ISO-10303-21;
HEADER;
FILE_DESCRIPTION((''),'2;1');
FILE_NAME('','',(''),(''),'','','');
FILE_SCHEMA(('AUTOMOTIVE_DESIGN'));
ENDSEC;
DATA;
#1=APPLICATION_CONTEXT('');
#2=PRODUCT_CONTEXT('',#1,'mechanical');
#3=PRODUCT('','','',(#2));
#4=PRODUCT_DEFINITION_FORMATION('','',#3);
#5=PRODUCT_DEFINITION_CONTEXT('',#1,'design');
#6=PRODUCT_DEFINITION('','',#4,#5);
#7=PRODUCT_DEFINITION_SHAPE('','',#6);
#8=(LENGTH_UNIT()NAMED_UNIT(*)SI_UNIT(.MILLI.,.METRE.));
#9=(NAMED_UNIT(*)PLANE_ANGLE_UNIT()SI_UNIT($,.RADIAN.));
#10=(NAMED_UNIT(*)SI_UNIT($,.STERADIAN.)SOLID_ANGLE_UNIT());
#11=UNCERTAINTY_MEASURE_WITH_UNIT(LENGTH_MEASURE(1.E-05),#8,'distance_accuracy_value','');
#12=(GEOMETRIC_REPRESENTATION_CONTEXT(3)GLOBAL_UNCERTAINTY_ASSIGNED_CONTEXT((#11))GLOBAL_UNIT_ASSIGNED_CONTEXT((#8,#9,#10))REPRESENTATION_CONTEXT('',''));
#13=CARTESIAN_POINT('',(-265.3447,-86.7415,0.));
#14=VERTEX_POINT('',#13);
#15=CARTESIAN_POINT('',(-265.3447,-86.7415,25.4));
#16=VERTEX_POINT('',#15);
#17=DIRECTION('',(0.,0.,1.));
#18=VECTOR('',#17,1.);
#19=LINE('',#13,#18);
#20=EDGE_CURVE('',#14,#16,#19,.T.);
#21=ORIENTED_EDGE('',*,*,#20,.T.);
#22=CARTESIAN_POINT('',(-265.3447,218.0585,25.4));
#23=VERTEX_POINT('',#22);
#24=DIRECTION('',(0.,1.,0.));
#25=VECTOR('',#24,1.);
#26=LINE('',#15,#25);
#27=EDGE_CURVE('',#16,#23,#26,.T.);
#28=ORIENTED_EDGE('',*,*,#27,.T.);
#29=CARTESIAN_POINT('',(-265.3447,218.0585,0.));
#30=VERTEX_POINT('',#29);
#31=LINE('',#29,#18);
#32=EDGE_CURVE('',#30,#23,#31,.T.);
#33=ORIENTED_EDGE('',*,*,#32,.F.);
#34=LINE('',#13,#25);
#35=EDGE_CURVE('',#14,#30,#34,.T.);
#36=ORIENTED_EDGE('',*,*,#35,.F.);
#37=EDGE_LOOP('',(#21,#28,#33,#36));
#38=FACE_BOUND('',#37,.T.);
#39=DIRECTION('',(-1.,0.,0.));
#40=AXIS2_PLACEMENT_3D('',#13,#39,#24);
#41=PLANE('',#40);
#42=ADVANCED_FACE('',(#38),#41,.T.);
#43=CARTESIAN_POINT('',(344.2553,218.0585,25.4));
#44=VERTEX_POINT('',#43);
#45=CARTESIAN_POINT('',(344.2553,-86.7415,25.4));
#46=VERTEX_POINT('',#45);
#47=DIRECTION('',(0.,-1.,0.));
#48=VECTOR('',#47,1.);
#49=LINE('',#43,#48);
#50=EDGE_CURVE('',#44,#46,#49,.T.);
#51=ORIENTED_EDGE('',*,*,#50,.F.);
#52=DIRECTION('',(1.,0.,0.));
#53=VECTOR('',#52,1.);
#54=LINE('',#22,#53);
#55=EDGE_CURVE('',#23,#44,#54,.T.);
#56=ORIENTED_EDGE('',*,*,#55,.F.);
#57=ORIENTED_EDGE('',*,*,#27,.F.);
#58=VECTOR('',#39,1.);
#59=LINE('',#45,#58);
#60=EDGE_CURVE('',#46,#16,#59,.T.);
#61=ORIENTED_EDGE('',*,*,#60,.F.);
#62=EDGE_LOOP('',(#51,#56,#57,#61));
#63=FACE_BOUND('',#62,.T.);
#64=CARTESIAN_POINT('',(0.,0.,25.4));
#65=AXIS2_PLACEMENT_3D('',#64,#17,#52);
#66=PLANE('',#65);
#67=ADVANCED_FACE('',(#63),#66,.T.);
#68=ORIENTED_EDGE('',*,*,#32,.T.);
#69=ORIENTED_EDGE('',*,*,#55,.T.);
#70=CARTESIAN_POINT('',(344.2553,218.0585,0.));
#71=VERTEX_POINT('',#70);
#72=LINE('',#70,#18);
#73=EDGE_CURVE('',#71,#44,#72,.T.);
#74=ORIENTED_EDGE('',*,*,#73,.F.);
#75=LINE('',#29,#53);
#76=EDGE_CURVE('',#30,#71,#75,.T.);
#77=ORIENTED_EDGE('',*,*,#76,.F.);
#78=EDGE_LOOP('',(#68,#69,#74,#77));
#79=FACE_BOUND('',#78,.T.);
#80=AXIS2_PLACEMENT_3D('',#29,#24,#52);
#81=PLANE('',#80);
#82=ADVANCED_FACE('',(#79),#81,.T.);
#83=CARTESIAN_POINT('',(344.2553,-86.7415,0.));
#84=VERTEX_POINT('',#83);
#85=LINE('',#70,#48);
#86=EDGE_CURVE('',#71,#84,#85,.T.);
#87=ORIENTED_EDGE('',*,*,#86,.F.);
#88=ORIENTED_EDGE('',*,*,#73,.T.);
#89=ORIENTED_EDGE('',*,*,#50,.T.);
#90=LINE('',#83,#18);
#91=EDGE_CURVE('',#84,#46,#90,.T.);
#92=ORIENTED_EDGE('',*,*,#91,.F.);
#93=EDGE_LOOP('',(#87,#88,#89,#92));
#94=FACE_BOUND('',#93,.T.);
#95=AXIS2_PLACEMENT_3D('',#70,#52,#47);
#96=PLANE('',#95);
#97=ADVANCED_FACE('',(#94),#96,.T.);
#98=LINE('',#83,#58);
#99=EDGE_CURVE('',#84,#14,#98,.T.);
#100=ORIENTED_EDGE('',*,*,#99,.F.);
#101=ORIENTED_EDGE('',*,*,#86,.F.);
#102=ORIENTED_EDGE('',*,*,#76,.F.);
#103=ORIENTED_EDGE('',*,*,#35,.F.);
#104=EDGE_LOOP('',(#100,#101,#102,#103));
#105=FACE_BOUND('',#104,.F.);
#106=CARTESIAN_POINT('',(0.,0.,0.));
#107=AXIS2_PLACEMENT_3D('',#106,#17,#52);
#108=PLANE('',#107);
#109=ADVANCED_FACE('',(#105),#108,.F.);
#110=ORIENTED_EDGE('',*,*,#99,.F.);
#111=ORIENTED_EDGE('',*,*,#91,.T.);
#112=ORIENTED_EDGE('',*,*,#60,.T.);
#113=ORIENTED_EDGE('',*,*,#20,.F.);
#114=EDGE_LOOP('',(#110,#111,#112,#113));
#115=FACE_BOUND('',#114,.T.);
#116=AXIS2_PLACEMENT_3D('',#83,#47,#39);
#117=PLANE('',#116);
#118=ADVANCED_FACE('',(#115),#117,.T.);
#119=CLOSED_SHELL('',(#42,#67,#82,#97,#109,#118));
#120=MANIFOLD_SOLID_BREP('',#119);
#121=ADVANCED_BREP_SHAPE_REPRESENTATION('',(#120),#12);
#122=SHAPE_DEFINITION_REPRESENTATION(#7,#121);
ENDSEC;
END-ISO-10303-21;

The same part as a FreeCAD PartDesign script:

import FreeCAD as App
import Part
import Sketcher

V = App.Vector
Q = App.Units.Quantity


def add_polygon(sketch, points):
    """Adds a closed chain of lines whose ends are joined by coincident constraints."""
    first, n = sketch.GeometryCount, len(points)
    for a, b in zip(points, points[1:] + points[:1]):
        sketch.addGeometry(Part.LineSegment(App.Vector(*a, 0), App.Vector(*b, 0)), False)
    for i in range(n):
        sketch.addConstraint(Sketcher.Constraint("Coincident", first + i, 2, first + (i + 1) % n, 1))

doc = App.newDocument("Part")
body = doc.addObject("PartDesign::Body", "Body")

# Sketch on XY plane
sketch1 = doc.addObject("Sketcher::SketchObject", "Sketch")
body.addObject(sketch1)
sketch1.AttachmentSupport = (doc.XY_Plane, [""])
sketch1.MapMode = "FlatFace"
add_polygon(sketch1, [(344.2553, 218.0585), (-265.3447, 218.0585), (-265.3447, -86.7415), (344.2553, -86.7415)])  # lines 0-3
sketch1.addConstraint([
    Sketcher.Constraint("Horizontal", 0),
    Sketcher.Constraint("Vertical", 1),
    Sketcher.Constraint("Horizontal", 2),
    Sketcher.Constraint("Vertical", 3),
    Sketcher.Constraint("DistanceX", 0, 2, 0, 1, Q("24 in")),
    Sketcher.Constraint("DistanceY", 1, 2, 1, 1, Q("12 in")),
    Sketcher.Constraint("DistanceX", 0, 2, -1, 1, 265.3447),
    Sketcher.Constraint("DistanceY", -1, 1, 0, 2, 218.0585),
])
pad1 = doc.addObject("PartDesign::Pad", "Pad")
body.addObject(pad1)
pad1.Profile = sketch1
pad1.Length = Q("1 in")

doc.recompute()
